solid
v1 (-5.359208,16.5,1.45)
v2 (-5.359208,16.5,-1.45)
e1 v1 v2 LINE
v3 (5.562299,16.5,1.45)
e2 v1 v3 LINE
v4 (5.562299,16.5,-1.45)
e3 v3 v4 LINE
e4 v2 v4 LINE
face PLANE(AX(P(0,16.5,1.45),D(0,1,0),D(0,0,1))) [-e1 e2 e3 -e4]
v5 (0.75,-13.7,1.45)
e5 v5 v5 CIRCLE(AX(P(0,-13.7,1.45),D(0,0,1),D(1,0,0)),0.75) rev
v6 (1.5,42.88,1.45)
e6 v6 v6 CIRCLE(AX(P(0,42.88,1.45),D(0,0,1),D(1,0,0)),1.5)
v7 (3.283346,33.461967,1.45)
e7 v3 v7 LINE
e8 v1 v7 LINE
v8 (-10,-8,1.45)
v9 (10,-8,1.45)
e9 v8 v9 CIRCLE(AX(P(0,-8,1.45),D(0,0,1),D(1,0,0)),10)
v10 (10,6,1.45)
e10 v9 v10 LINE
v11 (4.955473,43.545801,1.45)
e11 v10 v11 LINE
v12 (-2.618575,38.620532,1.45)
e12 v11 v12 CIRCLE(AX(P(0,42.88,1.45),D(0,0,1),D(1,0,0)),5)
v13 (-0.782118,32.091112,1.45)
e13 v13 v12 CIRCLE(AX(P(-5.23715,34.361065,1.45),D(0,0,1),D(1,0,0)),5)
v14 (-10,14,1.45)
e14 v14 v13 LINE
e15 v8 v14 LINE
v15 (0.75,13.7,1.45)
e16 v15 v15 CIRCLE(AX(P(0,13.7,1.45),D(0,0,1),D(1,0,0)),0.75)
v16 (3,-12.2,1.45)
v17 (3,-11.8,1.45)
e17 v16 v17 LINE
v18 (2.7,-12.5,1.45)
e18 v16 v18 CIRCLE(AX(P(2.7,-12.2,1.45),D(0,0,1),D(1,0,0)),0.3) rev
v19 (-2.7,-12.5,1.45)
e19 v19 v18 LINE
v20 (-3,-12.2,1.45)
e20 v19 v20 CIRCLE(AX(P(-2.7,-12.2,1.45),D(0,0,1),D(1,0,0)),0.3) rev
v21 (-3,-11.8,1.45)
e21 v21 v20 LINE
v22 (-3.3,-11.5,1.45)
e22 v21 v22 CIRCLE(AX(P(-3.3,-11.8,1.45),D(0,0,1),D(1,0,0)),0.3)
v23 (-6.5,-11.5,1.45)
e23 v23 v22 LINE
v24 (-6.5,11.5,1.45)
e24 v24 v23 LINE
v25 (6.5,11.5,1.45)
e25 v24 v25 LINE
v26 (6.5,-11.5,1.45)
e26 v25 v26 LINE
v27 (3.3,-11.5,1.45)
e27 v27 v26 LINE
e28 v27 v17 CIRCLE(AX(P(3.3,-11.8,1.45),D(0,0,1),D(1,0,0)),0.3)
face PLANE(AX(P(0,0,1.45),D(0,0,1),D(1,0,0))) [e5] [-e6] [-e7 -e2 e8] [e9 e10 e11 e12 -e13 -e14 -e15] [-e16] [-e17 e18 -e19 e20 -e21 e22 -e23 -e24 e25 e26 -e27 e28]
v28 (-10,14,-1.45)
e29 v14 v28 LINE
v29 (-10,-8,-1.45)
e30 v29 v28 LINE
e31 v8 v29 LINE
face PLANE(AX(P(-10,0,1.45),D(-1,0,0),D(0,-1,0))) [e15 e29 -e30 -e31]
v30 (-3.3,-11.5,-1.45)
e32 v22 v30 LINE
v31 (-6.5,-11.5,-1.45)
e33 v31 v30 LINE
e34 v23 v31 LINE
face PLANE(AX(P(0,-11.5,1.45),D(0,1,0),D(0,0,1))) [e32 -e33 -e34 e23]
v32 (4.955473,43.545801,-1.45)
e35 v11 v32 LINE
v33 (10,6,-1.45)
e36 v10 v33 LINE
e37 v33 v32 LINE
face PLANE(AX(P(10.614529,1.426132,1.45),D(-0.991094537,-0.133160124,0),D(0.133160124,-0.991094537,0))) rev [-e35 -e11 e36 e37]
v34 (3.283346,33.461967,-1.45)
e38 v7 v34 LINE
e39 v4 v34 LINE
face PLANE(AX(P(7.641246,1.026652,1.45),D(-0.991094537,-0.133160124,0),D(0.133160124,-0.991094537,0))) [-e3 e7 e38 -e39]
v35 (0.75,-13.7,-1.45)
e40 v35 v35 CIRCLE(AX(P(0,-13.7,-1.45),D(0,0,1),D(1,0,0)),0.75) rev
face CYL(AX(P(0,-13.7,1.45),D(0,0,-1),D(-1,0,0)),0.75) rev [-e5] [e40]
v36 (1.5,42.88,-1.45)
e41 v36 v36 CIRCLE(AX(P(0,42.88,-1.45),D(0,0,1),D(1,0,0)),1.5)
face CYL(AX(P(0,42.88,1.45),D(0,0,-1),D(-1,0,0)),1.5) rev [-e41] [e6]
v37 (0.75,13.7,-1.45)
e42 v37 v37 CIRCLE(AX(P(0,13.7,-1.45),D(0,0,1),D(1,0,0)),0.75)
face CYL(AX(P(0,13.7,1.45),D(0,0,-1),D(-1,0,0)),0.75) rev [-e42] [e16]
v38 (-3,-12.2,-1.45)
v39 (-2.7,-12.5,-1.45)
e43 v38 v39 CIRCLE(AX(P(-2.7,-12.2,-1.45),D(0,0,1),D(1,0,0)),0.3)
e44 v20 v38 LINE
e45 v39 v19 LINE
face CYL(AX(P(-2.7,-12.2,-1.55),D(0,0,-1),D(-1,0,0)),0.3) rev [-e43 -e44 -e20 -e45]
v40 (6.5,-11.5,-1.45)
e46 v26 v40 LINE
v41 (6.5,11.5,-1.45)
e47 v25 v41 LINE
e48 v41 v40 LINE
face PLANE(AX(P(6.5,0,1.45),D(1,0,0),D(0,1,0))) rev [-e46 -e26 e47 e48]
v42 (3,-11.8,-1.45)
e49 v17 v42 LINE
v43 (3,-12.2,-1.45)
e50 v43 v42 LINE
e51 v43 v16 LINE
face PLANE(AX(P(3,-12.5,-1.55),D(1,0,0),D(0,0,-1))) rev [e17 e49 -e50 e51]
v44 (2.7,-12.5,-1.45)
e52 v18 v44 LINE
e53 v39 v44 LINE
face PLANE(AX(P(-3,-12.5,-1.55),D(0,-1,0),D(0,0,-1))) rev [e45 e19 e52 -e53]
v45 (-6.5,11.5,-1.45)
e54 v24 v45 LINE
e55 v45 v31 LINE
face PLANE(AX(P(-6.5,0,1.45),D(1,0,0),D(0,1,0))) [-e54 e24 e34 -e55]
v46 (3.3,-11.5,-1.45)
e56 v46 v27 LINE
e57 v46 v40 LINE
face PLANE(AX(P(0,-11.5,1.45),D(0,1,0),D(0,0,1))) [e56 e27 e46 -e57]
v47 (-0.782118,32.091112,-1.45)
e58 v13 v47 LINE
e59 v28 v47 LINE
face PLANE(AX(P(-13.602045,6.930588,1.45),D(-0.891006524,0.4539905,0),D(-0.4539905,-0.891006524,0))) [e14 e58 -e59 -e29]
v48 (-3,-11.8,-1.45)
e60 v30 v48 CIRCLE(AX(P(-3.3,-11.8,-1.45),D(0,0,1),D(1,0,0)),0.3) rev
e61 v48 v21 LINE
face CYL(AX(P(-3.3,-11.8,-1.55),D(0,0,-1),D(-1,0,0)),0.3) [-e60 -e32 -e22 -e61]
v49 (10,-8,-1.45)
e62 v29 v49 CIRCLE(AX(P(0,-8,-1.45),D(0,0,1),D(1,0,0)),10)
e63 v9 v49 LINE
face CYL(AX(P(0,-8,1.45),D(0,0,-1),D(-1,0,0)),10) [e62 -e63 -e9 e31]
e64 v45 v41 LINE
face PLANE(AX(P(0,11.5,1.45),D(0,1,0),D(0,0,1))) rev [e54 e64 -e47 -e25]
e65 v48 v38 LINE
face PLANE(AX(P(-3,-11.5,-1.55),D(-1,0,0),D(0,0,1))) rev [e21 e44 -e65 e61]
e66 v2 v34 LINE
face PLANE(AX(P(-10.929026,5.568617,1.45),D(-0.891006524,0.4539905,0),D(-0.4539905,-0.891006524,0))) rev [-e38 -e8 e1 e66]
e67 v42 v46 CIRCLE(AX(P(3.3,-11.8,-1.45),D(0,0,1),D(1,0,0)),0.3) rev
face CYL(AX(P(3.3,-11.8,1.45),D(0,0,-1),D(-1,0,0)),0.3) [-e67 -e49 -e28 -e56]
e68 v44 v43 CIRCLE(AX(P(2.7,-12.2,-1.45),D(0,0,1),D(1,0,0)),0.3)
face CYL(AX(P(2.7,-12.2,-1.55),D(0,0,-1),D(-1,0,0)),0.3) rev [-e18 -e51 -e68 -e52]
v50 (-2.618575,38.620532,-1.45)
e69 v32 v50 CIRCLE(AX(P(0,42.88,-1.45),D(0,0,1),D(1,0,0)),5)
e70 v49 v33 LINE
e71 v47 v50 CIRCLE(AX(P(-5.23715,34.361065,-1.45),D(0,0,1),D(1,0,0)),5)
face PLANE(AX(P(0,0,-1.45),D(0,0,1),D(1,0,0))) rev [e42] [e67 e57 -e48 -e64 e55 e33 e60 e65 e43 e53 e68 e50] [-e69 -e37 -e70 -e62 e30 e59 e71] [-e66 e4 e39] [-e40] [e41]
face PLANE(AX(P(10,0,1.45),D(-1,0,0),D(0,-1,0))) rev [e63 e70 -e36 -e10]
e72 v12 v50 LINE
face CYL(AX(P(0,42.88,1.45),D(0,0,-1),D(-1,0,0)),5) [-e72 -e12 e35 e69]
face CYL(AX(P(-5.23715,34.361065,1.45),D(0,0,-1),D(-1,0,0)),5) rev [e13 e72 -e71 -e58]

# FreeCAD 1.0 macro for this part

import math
import FreeCAD as App
import Part
import Sketcher
Q = App.Units.Quantity


def edges_at(feature, points):
    """Names of the edges that pass closest to the given points."""
    edges = feature.Shape.Edges
    near = lambda p: min(range(len(edges)), key=lambda i: edges[i].distToShape(Part.Vertex(*p))[0])
    return sorted({f"Edge{near(p) + 1}" for p in points})


def add_polygon(sketch, points):
    """Adds a closed chain of lines whose ends are joined by coincident constraints."""
    first, n = sketch.GeometryCount, len(points)
    for a, b in zip(points, points[1:] + points[:1]):
        sketch.addGeometry(Part.LineSegment(App.Vector(*a, 0), App.Vector(*b, 0)), False)
    for i in range(n):
        sketch.addConstraint(Sketcher.Constraint("Coincident", first + i, 2, first + (i + 1) % n, 1))

doc = App.newDocument("Part")
body = doc.addObject("PartDesign::Body", "Body")

# Sketch on XY plane
sketch1 = body.newObject("Sketcher::SketchObject", "Sketch")
sketch1.AttachmentSupport = (doc.getObject("XY_Plane"), [""])
sketch1.MapMode = "FlatFace"
sketch1.addGeometry(Part.ArcOfCircle(Part.Circle(App.Vector(0, -8, 0), App.Vector(0, 0, 1), 10), math.radians(180), math.radians(360)), False)  # 0
sketch1.addGeometry(Part.LineSegment(App.Vector(10, -8, 0), App.Vector(10, 6, 0)), False)  # 1
sketch1.addGeometry(Part.LineSegment(App.Vector(10, 6, 0), App.Vector(5, 43.5, 0)), False)  # 2
sketch1.addGeometry(Part.ArcOfCircle(Part.Circle(App.Vector(0, 42.9, 0), App.Vector(0, 0, 1), 5), math.radians(8), math.radians(238)), False)  # 3
sketch1.addGeometry(Part.ArcOfCircle(Part.Circle(App.Vector(-5.2, 34.4, 0), App.Vector(0, 0, 1), 5), math.radians(-27), math.radians(58)), False)  # 4
sketch1.addGeometry(Part.LineSegment(App.Vector(-0.8, 32.1, 0), App.Vector(-10, 14, 0)), False)  # 5
sketch1.addGeometry(Part.LineSegment(App.Vector(-10, 14, 0), App.Vector(-10, -8, 0)), False)  # 6
sketch1.addGeometry(Part.Circle(App.Vector(0, -13.7, 0), App.Vector(0, 0, 1), 0.8), False)  # 7
add_polygon(sketch1, [(6.5, -11.5), (-6.5, -11.5), (-6.5, 11.5), (6.5, 11.5)])  # lines 8-11
sketch1.addGeometry(Part.Circle(App.Vector(0, 13.7, 0), App.Vector(0, 0, 1), 0.8), False)  # 12
add_polygon(sketch1, [(3.3, 33.5), (5.6, 16.5), (-5.4, 16.5)])  # lines 13-15
sketch1.addGeometry(Part.Circle(App.Vector(0, 42.9, 0), App.Vector(0, 0, 1), 1.5), False)  # 16
sketch1.addConstraint([
    Sketcher.Constraint("Tangent", 0, 2, 1, 1),
    Sketcher.Constraint("Coincident", 1, 2, 2, 1),
    Sketcher.Constraint("Tangent", 2, 2, 3, 1),
    Sketcher.Constraint("Tangent", 3, 2, 4, 2),
    Sketcher.Constraint("Tangent", 4, 1, 5, 1),
    Sketcher.Constraint("Coincident", 5, 2, 6, 1),
    Sketcher.Constraint("Tangent", 6, 2, 0, 1),
    Sketcher.Constraint("Vertical", 1),
    Sketcher.Constraint("Vertical", 6),
    Sketcher.Constraint("Horizontal", 8),
    Sketcher.Constraint("Vertical", 9),
    Sketcher.Constraint("Horizontal", 10),
    Sketcher.Constraint("Vertical", 11),
    Sketcher.Constraint("Horizontal", 14),
    Sketcher.Constraint("Coincident", 16, 3, 3, 3),
    Sketcher.Constraint("Equal", 3, 4),
    Sketcher.Constraint("Equal", 7, 12),
    Sketcher.Constraint("Symmetric", 7, 3, 12, 3, -1, 1),
    Sketcher.Constraint("Symmetric", 8, 2, 10, 2, -1, 1),
    Sketcher.Constraint("PointOnObject", 0, 3, -2),
    Sketcher.Constraint("PointOnObject", 3, 3, -2),
    Sketcher.Constraint("PointOnObject", 7, 3, -2),
    Sketcher.Constraint("Parallel", 2, 13),
    Sketcher.Constraint("Parallel", 5, 15),
    Sketcher.Constraint("Diameter", 16, Q("3 mm")),
    Sketcher.Constraint("Radius", 0, Q("10 mm")),
    Sketcher.Constraint("Radius", 3, Q("5 mm")),
    Sketcher.Constraint("Diameter", 7, Q("1.5 mm")),
    Sketcher.Constraint("DistanceX", 8, 2, 8, 1, Q("13 mm")),
    Sketcher.Constraint("DistanceY", 1, 1, 1, 2, Q("14 mm")),
    Sketcher.Constraint("DistanceY", 6, 2, 6, 1, Q("22 mm")),
    Sketcher.Constraint("DistanceY", 9, 1, 9, 2, Q("23 mm")),
    Sketcher.Constraint("Angle", 5, Q("-117 deg")),
    Sketcher.Constraint("DistanceY", 0, 3, -1, 1, Q("8 mm")),
    Sketcher.Constraint("DistanceY", 10, 2, 13, 2, Q("5 mm")),
    Sketcher.Constraint("DistanceY", 7, 3, -1, 1, Q("13.7 mm")),
    Sketcher.Constraint("DistanceY", -1, 1, 3, 3, Q("42.88 mm")),
    Sketcher.Constraint("DistanceX", -1, 1, 13, 2, Q("5.562299 mm")),
    Sketcher.Constraint("Distance", 13, Q("17.114378 mm")),
])
pad1 = body.newObject("PartDesign::Pad", "Pad")
pad1.Profile = sketch1
pad1.Length = 2.9
pad1.Midplane = True

# Sketch on XY plane
sketch2 = body.newObject("Sketcher::SketchObject", "Sketch001")
sketch2.AttachmentSupport = (doc.getObject("XY_Plane"), [""])
sketch2.MapMode = "FlatFace"
sketch2.AttachmentOffset = App.Placement(App.Vector(0, 0, 1.45), App.Rotation())
add_polygon(sketch2, [(-3, -11.5), (-3, -12.5), (3, -12.5), (3, -11.5)])  # lines 0-3
sketch2.addConstraint([
    Sketcher.Constraint("Vertical", 0),
    Sketcher.Constraint("Horizontal", 1),
    Sketcher.Constraint("Vertical", 2),
    Sketcher.Constraint("Horizontal", 3),
    Sketcher.Constraint("DistanceX", 1, 1, 1, 2, Q("6 mm")),
    Sketcher.Constraint("DistanceY", 0, 2, 0, 1, Q("1 mm")),
    Sketcher.Constraint("DistanceX", 0, 2, -1, 1, Q("3 mm")),
    Sketcher.Constraint("DistanceY", 0, 2, -1, 1, Q("12.5 mm")),
])
pocket1 = body.newObject("PartDesign::Pocket", "Pocket")
pocket1.Profile = sketch2
pocket1.Length = 3
doc.recompute()

fillet = body.newObject("PartDesign::Fillet", "Fillet")
fillet.Base = (pocket1, edges_at(pocket1, [
    (-3, -11.5, 0),
    (3, -11.5, 0),
    (3, -12.5, 0),
    (-3, -12.5, 0),
]))
fillet.Radius = 0.3

doc.recompute()
